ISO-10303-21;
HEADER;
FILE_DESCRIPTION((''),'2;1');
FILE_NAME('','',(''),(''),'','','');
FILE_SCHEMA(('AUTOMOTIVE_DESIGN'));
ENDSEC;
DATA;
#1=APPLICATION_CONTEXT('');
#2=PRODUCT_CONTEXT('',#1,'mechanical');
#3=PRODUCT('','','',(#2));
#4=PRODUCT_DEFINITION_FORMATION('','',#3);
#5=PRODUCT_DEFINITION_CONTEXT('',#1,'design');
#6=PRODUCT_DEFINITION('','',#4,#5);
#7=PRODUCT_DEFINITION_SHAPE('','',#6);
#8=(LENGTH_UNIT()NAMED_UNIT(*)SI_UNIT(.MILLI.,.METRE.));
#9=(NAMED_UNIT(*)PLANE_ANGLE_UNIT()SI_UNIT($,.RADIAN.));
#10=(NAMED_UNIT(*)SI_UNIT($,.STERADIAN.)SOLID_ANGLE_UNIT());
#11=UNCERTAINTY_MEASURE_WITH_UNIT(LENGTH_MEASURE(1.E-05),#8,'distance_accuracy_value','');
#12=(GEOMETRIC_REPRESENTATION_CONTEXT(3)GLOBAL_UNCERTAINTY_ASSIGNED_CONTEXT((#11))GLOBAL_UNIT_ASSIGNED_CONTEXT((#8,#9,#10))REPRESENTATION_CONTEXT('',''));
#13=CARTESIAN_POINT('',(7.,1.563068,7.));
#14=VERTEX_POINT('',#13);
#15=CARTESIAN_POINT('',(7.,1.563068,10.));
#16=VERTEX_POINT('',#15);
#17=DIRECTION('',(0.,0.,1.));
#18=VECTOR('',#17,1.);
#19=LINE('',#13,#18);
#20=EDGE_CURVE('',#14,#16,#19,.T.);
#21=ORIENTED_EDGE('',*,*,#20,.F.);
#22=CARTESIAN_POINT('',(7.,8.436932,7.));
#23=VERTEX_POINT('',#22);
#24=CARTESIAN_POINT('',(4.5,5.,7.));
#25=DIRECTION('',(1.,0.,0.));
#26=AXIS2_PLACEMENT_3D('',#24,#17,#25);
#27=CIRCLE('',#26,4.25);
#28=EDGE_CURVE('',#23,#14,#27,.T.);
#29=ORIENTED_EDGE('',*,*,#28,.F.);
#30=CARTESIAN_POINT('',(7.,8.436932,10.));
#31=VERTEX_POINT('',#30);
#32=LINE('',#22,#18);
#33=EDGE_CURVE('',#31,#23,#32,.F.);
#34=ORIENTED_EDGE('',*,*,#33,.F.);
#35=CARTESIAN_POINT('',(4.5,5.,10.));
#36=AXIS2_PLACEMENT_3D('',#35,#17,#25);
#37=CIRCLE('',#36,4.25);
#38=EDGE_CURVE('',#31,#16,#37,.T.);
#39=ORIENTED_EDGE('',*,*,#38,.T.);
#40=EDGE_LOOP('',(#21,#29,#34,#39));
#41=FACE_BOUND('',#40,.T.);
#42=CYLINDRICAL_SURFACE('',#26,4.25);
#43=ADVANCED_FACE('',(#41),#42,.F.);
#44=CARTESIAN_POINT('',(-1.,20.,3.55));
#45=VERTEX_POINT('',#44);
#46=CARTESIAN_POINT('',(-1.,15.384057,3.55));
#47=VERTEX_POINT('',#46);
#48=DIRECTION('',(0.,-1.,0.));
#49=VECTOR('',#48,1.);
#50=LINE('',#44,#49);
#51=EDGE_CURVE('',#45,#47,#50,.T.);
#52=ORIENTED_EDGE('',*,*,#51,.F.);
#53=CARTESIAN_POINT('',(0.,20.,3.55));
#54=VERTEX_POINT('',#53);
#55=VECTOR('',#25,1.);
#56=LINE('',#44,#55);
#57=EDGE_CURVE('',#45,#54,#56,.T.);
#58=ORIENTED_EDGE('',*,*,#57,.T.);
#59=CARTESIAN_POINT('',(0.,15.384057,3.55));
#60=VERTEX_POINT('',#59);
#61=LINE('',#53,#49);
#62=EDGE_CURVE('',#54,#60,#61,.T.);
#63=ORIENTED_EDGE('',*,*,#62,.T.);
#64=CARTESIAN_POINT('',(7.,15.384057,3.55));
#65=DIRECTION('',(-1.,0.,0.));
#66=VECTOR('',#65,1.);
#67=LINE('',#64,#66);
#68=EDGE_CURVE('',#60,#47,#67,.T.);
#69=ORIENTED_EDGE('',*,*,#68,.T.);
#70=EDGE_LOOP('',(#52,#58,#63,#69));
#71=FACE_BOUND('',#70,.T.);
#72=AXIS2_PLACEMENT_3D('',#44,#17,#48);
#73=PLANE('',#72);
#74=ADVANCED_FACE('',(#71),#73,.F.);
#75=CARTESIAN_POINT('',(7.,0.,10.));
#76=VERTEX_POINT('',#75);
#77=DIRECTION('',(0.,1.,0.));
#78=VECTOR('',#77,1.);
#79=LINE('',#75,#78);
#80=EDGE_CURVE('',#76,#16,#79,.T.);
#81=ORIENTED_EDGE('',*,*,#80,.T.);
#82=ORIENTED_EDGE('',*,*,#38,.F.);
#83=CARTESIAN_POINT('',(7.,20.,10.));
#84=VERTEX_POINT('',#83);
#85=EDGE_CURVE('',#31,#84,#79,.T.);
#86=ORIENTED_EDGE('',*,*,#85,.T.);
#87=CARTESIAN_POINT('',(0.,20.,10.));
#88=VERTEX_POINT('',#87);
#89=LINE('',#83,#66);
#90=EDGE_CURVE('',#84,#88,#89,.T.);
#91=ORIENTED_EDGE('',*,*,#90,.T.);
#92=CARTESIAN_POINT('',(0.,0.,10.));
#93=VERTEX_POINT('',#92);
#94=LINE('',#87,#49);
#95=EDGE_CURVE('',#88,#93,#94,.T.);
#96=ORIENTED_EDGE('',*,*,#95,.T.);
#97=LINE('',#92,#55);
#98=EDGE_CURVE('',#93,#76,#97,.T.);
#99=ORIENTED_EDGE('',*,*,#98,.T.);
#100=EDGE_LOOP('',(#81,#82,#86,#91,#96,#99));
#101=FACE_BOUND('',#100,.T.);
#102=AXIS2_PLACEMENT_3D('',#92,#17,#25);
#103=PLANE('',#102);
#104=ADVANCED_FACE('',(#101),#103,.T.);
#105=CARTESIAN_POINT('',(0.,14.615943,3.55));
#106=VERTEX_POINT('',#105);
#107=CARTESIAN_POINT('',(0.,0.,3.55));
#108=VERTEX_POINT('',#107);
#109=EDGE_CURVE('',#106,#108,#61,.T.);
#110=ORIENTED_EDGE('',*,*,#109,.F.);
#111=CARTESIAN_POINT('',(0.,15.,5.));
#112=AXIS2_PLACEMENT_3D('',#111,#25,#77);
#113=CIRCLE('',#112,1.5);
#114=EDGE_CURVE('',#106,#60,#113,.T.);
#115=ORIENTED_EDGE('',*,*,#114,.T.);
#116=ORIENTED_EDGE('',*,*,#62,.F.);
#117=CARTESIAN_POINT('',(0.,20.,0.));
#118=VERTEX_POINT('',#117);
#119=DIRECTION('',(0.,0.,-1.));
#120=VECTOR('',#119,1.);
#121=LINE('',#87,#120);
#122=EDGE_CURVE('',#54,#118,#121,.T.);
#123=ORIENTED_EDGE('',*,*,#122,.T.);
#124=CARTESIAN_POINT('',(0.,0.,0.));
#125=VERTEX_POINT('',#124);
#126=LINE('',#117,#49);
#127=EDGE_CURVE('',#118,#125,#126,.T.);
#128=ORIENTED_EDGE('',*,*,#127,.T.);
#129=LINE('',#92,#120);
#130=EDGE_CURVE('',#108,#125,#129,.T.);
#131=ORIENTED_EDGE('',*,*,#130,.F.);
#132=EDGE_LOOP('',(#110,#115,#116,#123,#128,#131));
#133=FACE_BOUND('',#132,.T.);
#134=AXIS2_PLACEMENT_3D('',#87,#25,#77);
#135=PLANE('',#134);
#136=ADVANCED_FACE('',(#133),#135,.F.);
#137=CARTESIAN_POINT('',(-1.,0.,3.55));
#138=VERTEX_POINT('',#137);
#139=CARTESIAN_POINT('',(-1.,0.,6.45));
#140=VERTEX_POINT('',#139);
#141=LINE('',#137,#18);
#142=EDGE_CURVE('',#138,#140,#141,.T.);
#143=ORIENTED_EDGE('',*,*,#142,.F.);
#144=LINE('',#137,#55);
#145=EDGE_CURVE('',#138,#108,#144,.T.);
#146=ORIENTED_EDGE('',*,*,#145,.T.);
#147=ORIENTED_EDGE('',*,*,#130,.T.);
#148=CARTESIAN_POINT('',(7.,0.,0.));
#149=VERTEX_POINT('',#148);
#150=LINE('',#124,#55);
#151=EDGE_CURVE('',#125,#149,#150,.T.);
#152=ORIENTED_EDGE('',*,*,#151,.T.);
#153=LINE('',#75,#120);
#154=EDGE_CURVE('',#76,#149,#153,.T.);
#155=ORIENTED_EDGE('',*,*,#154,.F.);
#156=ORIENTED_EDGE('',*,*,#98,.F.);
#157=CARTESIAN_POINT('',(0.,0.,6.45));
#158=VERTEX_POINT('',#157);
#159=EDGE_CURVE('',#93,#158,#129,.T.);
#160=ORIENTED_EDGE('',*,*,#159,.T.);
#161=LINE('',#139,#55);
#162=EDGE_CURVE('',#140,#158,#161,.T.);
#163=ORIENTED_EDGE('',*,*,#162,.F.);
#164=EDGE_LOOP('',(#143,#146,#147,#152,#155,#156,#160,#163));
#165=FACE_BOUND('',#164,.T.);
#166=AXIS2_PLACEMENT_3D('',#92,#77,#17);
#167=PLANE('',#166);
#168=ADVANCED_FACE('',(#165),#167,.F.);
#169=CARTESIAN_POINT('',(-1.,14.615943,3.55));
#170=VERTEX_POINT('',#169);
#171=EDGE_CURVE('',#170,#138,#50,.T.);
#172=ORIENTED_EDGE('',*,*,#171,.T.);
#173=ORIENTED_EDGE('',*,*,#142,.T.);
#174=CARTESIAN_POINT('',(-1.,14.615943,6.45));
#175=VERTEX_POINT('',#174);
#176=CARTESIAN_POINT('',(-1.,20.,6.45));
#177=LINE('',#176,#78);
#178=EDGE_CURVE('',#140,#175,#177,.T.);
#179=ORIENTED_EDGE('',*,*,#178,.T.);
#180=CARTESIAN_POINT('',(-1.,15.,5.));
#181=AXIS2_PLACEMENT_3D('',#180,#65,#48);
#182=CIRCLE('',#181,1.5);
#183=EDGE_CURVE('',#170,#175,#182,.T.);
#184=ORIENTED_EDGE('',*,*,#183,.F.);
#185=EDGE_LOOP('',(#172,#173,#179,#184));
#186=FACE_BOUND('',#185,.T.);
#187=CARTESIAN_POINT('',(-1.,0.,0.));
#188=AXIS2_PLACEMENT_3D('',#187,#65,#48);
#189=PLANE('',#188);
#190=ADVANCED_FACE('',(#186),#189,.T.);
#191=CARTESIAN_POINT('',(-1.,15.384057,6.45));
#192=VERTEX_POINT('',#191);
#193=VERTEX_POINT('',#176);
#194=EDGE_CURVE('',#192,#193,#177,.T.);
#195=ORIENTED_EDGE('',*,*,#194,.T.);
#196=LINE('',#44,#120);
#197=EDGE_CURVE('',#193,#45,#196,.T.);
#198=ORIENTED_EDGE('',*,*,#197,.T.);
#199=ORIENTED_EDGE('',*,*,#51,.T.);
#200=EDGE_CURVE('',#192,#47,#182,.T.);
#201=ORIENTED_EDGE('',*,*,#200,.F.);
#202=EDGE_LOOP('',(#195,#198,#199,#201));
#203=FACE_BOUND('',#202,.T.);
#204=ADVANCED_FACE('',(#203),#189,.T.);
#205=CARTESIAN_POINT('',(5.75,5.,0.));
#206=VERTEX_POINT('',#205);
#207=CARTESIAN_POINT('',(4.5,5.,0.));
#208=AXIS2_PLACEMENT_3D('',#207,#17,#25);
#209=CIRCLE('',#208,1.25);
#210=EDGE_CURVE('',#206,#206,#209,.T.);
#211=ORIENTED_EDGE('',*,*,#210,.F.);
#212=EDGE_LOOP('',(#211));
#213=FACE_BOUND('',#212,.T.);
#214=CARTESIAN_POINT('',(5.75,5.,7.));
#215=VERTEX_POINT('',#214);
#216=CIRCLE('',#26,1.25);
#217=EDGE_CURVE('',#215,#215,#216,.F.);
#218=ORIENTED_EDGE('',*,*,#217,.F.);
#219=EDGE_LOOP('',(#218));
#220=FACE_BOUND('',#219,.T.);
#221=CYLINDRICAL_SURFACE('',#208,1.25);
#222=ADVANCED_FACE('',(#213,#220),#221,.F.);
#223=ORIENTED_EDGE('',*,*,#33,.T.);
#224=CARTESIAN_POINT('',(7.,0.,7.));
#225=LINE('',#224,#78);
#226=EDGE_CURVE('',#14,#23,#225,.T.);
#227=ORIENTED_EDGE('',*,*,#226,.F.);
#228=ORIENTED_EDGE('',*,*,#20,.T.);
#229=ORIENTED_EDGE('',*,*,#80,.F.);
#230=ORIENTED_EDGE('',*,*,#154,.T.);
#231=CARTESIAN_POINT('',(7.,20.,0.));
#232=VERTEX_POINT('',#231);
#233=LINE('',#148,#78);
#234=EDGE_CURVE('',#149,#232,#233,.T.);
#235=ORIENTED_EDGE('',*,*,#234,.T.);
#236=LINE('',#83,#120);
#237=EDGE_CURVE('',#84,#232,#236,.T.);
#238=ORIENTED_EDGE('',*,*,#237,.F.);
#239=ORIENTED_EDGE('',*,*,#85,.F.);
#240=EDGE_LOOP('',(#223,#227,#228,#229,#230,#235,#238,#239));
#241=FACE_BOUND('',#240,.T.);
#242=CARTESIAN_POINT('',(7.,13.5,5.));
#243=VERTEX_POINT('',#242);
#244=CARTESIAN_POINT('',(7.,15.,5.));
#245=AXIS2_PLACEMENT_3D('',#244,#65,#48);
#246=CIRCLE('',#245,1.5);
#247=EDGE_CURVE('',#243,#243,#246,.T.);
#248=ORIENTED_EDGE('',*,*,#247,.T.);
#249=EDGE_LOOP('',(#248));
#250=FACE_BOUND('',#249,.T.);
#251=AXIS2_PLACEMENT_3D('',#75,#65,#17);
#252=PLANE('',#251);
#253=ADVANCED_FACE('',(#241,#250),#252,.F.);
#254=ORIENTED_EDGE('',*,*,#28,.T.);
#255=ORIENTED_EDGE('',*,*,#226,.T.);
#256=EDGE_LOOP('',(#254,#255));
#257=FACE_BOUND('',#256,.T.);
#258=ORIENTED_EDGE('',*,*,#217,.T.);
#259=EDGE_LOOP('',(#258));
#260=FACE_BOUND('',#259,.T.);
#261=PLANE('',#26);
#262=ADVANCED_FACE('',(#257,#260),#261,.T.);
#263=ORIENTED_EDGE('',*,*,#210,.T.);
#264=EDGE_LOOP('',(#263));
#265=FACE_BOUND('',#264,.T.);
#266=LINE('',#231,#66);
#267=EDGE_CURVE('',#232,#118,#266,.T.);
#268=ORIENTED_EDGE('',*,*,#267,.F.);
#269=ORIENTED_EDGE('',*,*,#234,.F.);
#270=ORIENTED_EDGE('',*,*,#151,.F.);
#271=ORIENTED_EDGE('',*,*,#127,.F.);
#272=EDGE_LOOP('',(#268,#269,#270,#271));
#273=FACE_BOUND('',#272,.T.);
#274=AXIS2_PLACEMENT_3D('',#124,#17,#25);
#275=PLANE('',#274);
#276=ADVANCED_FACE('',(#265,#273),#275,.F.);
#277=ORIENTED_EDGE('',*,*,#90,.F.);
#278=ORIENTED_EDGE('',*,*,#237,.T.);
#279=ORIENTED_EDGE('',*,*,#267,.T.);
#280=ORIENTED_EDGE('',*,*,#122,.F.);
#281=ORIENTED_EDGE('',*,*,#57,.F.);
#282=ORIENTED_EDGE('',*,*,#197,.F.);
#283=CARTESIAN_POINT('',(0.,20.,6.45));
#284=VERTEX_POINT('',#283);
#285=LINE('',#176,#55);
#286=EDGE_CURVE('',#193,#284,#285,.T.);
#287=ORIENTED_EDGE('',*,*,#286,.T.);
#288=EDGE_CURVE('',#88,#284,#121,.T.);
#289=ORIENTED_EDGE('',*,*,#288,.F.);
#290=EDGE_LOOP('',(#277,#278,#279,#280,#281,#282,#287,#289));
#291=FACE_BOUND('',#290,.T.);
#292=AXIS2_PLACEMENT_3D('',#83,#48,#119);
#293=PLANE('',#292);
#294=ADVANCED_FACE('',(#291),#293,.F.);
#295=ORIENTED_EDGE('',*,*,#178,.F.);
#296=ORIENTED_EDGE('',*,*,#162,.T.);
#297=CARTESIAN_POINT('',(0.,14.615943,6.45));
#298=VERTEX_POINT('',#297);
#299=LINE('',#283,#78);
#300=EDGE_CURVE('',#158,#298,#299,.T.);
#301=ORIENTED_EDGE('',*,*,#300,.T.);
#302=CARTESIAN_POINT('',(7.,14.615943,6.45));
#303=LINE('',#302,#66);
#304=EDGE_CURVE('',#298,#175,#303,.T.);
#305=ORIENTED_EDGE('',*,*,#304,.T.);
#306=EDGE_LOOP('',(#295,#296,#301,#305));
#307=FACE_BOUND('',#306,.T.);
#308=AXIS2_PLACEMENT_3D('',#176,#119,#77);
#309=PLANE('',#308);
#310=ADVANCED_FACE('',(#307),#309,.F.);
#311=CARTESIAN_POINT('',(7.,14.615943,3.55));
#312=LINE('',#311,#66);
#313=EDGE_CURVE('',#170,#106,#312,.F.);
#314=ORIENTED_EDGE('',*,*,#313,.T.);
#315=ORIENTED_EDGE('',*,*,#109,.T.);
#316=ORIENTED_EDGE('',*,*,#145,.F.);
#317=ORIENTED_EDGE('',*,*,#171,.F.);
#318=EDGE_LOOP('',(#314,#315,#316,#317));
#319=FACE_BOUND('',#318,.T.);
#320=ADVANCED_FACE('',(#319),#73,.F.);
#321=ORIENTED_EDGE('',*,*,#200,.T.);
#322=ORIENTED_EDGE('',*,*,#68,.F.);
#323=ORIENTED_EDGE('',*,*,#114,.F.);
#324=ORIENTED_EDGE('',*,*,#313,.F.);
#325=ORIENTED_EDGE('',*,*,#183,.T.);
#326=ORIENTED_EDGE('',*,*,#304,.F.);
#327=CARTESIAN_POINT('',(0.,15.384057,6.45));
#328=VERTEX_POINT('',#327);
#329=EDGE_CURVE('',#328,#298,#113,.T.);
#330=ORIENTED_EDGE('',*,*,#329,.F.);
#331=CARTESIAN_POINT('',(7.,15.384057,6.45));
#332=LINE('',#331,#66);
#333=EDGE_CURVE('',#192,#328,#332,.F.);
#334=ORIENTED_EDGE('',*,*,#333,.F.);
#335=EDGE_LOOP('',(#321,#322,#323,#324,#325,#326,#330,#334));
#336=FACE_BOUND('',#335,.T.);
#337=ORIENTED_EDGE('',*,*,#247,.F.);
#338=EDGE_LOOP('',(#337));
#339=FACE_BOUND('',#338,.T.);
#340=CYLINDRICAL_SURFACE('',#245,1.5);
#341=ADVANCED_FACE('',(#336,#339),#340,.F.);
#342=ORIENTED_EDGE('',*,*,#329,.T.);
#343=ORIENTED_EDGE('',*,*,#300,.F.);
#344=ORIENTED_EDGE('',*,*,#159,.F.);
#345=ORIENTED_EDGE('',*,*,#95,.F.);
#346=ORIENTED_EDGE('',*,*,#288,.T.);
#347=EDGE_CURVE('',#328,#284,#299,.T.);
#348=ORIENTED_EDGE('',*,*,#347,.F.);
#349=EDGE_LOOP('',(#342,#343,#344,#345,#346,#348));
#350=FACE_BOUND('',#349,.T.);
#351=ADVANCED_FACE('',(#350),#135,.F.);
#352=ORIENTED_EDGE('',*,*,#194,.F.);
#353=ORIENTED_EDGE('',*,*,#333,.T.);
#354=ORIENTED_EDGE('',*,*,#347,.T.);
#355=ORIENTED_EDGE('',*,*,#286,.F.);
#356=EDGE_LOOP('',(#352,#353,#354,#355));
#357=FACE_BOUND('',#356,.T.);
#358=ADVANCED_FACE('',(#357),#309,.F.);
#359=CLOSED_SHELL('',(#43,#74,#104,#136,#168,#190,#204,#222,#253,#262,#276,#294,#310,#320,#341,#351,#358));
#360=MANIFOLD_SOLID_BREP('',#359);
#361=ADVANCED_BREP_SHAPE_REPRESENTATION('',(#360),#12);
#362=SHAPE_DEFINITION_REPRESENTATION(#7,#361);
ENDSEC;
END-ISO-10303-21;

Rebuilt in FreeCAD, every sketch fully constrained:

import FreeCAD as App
import Part
import Sketcher
Q = App.Units.Quantity


def add_polygon(sketch, points):
    """Adds a closed chain of lines whose ends are joined by coincident constraints."""
    first, n = sketch.GeometryCount, len(points)
    for a, b in zip(points, points[1:] + points[:1]):
        sketch.addGeometry(Part.LineSegment(App.Vector(*a, 0), App.Vector(*b, 0)), False)
    for i in range(n):
        sketch.addConstraint(Sketcher.Constraint("Coincident", first + i, 2, first + (i + 1) % n, 1))

doc = App.newDocument("Part")
body = doc.addObject("PartDesign::Body", "Body")

# Sketch on XY plane
sketch1 = body.newObject("Sketcher::SketchObject", "Sketch")
sketch1.AttachmentSupport = (doc.getObject("XY_Plane"), [""])
sketch1.MapMode = "FlatFace"
add_polygon(sketch1, [(0, 20), (0, 0), (7, 0), (7, 20)])  # lines 0-3
sketch1.addConstraint(Sketcher.Constraint("Vertical", 0))
sketch1.addConstraint(Sketcher.Constraint("Horizontal", 1))
sketch1.addConstraint(Sketcher.Constraint("Vertical", 2))
sketch1.addConstraint(Sketcher.Constraint("Horizontal", 3))
sketch1.addConstraint(Sketcher.Constraint("Coincident", 0, 2, -1, 1))
sketch1.addConstraint(Sketcher.Constraint("DistanceX", 1, 1, 1, 2, Q("7 mm")))
sketch1.addConstraint(Sketcher.Constraint("DistanceY", 0, 2, 0, 1, Q("20 mm")))
pad1 = body.newObject("PartDesign::Pad", "Pad")
pad1.Profile = sketch1
pad1.Length = 10

# Sketch on YZ plane
sketch2 = body.newObject("Sketcher::SketchObject", "Sketch001")
sketch2.AttachmentSupport = (doc.getObject("YZ_Plane"), [""])
sketch2.MapMode = "FlatFace"
add_polygon(sketch2, [(20, 3.5), (0, 3.5), (0, 6.5), (20, 6.5)])  # lines 0-3
sketch2.addConstraint(Sketcher.Constraint("Horizontal", 0))
sketch2.addConstraint(Sketcher.Constraint("Vertical", 1))
sketch2.addConstraint(Sketcher.Constraint("Horizontal", 2))
sketch2.addConstraint(Sketcher.Constraint("Vertical", 3))
sketch2.addConstraint(Sketcher.Constraint("PointOnObject", 0, 2, -2))
sketch2.addConstraint(Sketcher.Constraint("DistanceX", 0, 2, 0, 1, Q("20 mm")))
sketch2.addConstraint(Sketcher.Constraint("DistanceY", 1, 1, 1, 2, Q("2.9 mm")))
sketch2.addConstraint(Sketcher.Constraint("DistanceY", -1, 1, 0, 2, Q("3.55 mm")))
pad2 = body.newObject("PartDesign::Pad", "Pad001")
pad2.Profile = sketch2
pad2.Length = 1
pad2.Reversed = True

# Sketch on YZ plane
sketch3 = body.newObject("Sketcher::SketchObject", "Sketch002")
sketch3.AttachmentSupport = (doc.getObject("YZ_Plane"), [""])
sketch3.MapMode = "FlatFace"
sketch3.addGeometry(Part.Circle(App.Vector(15, 5, 0), App.Vector(0, 0, 1), 1.5), False)
sketch3.addConstraint(Sketcher.Constraint("Diameter", 0, Q("3 mm")))
sketch3.addConstraint(Sketcher.Constraint("DistanceX", -1, 1, 0, 3, Q("15 mm")))
sketch3.addConstraint(Sketcher.Constraint("DistanceY", -1, 1, 0, 3, Q("5 mm")))
pocket1 = body.newObject("PartDesign::Pocket", "Pocket")
pocket1.Profile = sketch3
pocket1.Type = "ThroughAll"
pocket1.Midplane = True

# Sketch on XY plane
sketch4 = body.newObject("Sketcher::SketchObject", "Sketch003")
sketch4.AttachmentSupport = (doc.getObject("XY_Plane"), [""])
sketch4.MapMode = "FlatFace"
sketch4.AttachmentOffset = App.Placement(App.Vector(0, 0, 10), App.Rotation())
sketch4.addGeometry(Part.Circle(App.Vector(4.5, 5, 0), App.Vector(0, 0, 1), 1.2), False)
sketch4.addConstraint(Sketcher.Constraint("Diameter", 0, Q("2.5 mm")))
sketch4.addConstraint(Sketcher.Constraint("DistanceY", -1, 1, 0, 3, Q("5 mm")))
sketch4.addConstraint(Sketcher.Constraint("DistanceX", -1, 1, 0, 3, Q("4.5 mm")))
pocket2 = body.newObject("PartDesign::Pocket", "Pocket001")
pocket2.Profile = sketch4
pocket2.Type = "ThroughAll"

# Sketch on XY plane
sketch5 = body.newObject("Sketcher::SketchObject", "Sketch004")
sketch5.AttachmentSupport = (doc.getObject("XY_Plane"), [""])
sketch5.MapMode = "FlatFace"
sketch5.AttachmentOffset = App.Placement(App.Vector(0, 0, 10), App.Rotation())
sketch5.addGeometry(Part.Circle(App.Vector(4.5, 5, 0), App.Vector(0, 0, 1), 4.2), False)
sketch5.addConstraint(Sketcher.Constraint("Diameter", 0, Q("8.5 mm")))
sketch5.addConstraint(Sketcher.Constraint("DistanceY", -1, 1, 0, 3, Q("5 mm")))
sketch5.addConstraint(Sketcher.Constraint("DistanceX", -1, 1, 0, 3, Q("4.5 mm")))
pocket3 = body.newObject("PartDesign::Pocket", "Pocket002")
pocket3.Profile = sketch5
pocket3.Length = 3

doc.recompute()
